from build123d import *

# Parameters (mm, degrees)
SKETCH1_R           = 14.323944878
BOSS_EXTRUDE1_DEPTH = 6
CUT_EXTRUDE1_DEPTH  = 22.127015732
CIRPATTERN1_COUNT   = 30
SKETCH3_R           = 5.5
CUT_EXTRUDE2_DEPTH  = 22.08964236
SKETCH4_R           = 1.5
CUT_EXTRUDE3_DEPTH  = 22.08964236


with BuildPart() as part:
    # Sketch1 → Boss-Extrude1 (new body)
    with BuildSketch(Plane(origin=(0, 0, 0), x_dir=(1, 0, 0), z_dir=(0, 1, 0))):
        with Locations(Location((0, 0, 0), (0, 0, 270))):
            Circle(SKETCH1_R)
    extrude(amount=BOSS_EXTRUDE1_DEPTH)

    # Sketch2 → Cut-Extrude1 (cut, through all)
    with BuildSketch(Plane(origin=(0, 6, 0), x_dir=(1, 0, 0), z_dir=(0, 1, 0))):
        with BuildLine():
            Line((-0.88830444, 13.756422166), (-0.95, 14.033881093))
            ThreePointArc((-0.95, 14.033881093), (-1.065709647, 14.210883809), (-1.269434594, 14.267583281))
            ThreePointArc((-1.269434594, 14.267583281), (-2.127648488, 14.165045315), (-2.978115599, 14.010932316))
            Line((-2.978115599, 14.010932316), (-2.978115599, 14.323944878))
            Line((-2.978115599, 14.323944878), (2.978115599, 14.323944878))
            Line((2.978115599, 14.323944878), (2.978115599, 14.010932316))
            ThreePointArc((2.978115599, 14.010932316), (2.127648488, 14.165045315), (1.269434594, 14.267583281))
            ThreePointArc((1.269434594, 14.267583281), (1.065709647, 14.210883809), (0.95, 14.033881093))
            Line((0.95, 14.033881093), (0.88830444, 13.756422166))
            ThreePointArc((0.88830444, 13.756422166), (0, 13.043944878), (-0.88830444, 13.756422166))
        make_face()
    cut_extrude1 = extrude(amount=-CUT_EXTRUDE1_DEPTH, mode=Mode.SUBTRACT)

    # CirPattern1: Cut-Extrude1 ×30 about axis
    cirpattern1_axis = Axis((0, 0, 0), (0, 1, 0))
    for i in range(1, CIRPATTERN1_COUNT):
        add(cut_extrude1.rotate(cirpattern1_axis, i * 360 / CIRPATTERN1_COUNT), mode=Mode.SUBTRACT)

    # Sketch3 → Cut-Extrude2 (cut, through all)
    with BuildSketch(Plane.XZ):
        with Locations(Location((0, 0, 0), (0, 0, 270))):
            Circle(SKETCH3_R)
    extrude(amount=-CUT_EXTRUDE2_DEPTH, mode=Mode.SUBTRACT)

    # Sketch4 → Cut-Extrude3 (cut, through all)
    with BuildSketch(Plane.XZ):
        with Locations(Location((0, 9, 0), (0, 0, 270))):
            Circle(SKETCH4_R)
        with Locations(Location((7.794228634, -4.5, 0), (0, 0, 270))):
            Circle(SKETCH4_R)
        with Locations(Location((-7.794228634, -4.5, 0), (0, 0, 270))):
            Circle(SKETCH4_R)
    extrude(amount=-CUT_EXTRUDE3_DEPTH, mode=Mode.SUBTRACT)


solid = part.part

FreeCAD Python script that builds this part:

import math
import FreeCAD as App
import Part
import Sketcher

V = App.Vector

doc = App.newDocument("Part")
body = doc.addObject("PartDesign::Body", "Body")

sketch1 = body.newObject("Sketcher::SketchObject", "Sketch")
sketch1.AttachmentSupport = (doc.getObject("XZ_Plane"), [""])
sketch1.MapMode = "FlatFace"
sketch1.addGeometry(Part.Circle(V(0, 0, 0), V(0, 0, 1), 14), False)
sketch1.addConstraint(Sketcher.Constraint("Coincident", 0, 3, -1, 1))
sketch1.addConstraint(Sketcher.Constraint("Diameter", 0, 28.64789))
pad1 = body.newObject("PartDesign::Pad", "Pad")
pad1.Profile = sketch1
pad1.Length = 6
pad1.Reversed = True

sketch2 = body.newObject("Sketcher::SketchObject", "Sketch001")
sketch2.AttachmentSupport = (doc.getObject("XZ_Plane"), [""])
sketch2.MapMode = "FlatFace"
sketch2.AttachmentOffset = App.Placement(V(0, 0, -6), App.Rotation())
sketch2.addGeometry(Part.LineSegment(V(-0.95, -14.03, 0), V(-0.89, -13.76, 0)), False)
sketch2.addGeometry(Part.ArcOfCircle(Part.Circle(V(0, -13.95, 0), V(0, 0, 1), 0.91), math.radians(13), math.radians(167)), False)
sketch2.addGeometry(Part.LineSegment(V(0.89, -13.76, 0), V(0.95, -14.03, 0)), False)
sketch2.addGeometry(Part.ArcOfCircle(Part.Circle(V(1.24, -13.97, 0), V(0, 0, 1), 0.3), math.radians(-167), math.radians(-85)), False)
sketch2.addGeometry(Part.ArcOfCircle(Part.Circle(V(0, 0, 0), V(0, 0, 1), 14.32), math.radians(-84.92), math.radians(-78)), False)
sketch2.addGeometry(Part.LineSegment(V(2.98, -14.01, 0), V(2.98, -14.32, 0)), False)
sketch2.addGeometry(Part.LineSegment(V(2.98, -14.32, 0), V(-2.98, -14.32, 0)), False)
sketch2.addGeometry(Part.LineSegment(V(-2.98, -14.32, 0), V(-2.98, -14.01, 0)), False)
sketch2.addGeometry(Part.ArcOfCircle(Part.Circle(V(0, 0, 0), V(0, 0, 1), 14.32), math.radians(-102), math.radians(-95.08)), False)
sketch2.addGeometry(Part.ArcOfCircle(Part.Circle(V(-1.24, -13.97, 0), V(0, 0, 1), 0.3), math.radians(-95), math.radians(-13)), False)
sketch2.addConstraint(Sketcher.Constraint("Tangent", 0, 2, 1, 2))
sketch2.addConstraint(Sketcher.Constraint("Tangent", 1, 1, 2, 1))
sketch2.addConstraint(Sketcher.Constraint("Tangent", 2, 2, 3, 1))
sketch2.addConstraint(Sketcher.Constraint("Tangent", 3, 2, 4, 1))
sketch2.addConstraint(Sketcher.Constraint("Coincident", 4, 2, 5, 1))
sketch2.addConstraint(Sketcher.Constraint("Coincident", 5, 2, 6, 1))
sketch2.addConstraint(Sketcher.Constraint("Coincident", 6, 2, 7, 1))
sketch2.addConstraint(Sketcher.Constraint("Coincident", 7, 2, 8, 1))
sketch2.addConstraint(Sketcher.Constraint("Tangent", 8, 2, 9, 1))
sketch2.addConstraint(Sketcher.Constraint("Tangent", 9, 2, 0, 1))
sketch2.addConstraint(Sketcher.Constraint("Vertical", 5))
sketch2.addConstraint(Sketcher.Constraint("Horizontal", 6))
sketch2.addConstraint(Sketcher.Constraint("Vertical", 7))
sketch2.addConstraint(Sketcher.Constraint("Coincident", 4, 3, -1, 1))
sketch2.addConstraint(Sketcher.Constraint("Coincident", 8, 3, -1, 1))
sketch2.addConstraint(Sketcher.Constraint("Equal", 4, 8))
sketch2.addConstraint(Sketcher.Constraint("Equal", 3, 9))
sketch2.addConstraint(Sketcher.Constraint("Symmetric", 0, 2, 1, 1, -2))
sketch2.addConstraint(Sketcher.Constraint("Horizontal", 4, 2, 7, 2))
sketch2.addConstraint(Sketcher.Constraint("Radius", 3, 0.3))
sketch2.addConstraint(Sketcher.Constraint("Radius", 1, 0.91))
sketch2.addConstraint(Sketcher.Constraint("DistanceX", -1, 1, 2, 2, 0.95))
sketch2.addConstraint(Sketcher.Constraint("DistanceY", 6, 2, 1, 3, 0.37))
sketch2.addConstraint(Sketcher.Constraint("Radius", 4, 14.323945))
sketch2.addConstraint(Sketcher.Constraint("DistanceX", 6, 2, 6, 1, 5.956231))
sketch2.addConstraint(Sketcher.Constraint("DistanceY", 5, 2, 5, 1, 0.313013))
pocket1 = body.newObject("PartDesign::Pocket", "Pocket")
pocket1.Profile = sketch2
pocket1.Type = "ThroughAll"
pocket1.Reversed = True
doc.recompute()

polarpattern = body.newObject("PartDesign::PolarPattern", "PolarPattern")
polarpattern.Originals = [pocket1]
polarpattern.Axis = (doc.getObject("Y_Axis"), [""])
polarpattern.Angle = 360
polarpattern.Occurrences = 30
body.Tip = polarpattern

sketch3 = body.newObject("Sketcher::SketchObject", "Sketch002")
sketch3.AttachmentSupport = (doc.getObject("XZ_Plane"), [""])
sketch3.MapMode = "FlatFace"
sketch3.addGeometry(Part.Circle(V(0, 0, 0), V(0, 0, 1), 6), False)
sketch3.addConstraint(Sketcher.Constraint("Coincident", 0, 3, -1, 1))
sketch3.addConstraint(Sketcher.Constraint("Diameter", 0, 11.0))
pocket2 = body.newObject("PartDesign::Pocket", "Pocket001")
pocket2.Profile = sketch3
pocket2.Type = "ThroughAll"

sketch4 = body.newObject("Sketcher::SketchObject", "Sketch003")
sketch4.AttachmentSupport = (doc.getObject("XZ_Plane"), [""])
sketch4.MapMode = "FlatFace"
sketch4.addGeometry(Part.Circle(V(0, 9, 0), V(0, 0, 1), 1.5), False)
sketch4.addGeometry(Part.Circle(V(7.8, -4.5, 0), V(0, 0, 1), 1.5), False)
sketch4.addGeometry(Part.Circle(V(-7.8, -4.5, 0), V(0, 0, 1), 1.5), False)
sketch4.addConstraint(Sketcher.Constraint("Equal", 0, 1))
sketch4.addConstraint(Sketcher.Constraint("Equal", 1, 2))
sketch4.addConstraint(Sketcher.Constraint("Symmetric", 1, 3, 2, 3, -2))
sketch4.addConstraint(Sketcher.Constraint("PointOnObject", 0, 3, -2))
sketch4.addConstraint(Sketcher.Constraint("Diameter", 0, 3.0))
sketch4.addConstraint(Sketcher.Constraint("DistanceY", -1, 1, 0, 3, 9.0))
sketch4.addConstraint(Sketcher.Constraint("DistanceY", 1, 3, -1, 1, 4.5))
sketch4.addConstraint(Sketcher.Constraint("DistanceX", -1, 1, 1, 3, 7.794229))
pocket3 = body.newObject("PartDesign::Pocket", "Pocket002")
pocket3.Profile = sketch4
pocket3.Type = "ThroughAll"

doc.recompute()
